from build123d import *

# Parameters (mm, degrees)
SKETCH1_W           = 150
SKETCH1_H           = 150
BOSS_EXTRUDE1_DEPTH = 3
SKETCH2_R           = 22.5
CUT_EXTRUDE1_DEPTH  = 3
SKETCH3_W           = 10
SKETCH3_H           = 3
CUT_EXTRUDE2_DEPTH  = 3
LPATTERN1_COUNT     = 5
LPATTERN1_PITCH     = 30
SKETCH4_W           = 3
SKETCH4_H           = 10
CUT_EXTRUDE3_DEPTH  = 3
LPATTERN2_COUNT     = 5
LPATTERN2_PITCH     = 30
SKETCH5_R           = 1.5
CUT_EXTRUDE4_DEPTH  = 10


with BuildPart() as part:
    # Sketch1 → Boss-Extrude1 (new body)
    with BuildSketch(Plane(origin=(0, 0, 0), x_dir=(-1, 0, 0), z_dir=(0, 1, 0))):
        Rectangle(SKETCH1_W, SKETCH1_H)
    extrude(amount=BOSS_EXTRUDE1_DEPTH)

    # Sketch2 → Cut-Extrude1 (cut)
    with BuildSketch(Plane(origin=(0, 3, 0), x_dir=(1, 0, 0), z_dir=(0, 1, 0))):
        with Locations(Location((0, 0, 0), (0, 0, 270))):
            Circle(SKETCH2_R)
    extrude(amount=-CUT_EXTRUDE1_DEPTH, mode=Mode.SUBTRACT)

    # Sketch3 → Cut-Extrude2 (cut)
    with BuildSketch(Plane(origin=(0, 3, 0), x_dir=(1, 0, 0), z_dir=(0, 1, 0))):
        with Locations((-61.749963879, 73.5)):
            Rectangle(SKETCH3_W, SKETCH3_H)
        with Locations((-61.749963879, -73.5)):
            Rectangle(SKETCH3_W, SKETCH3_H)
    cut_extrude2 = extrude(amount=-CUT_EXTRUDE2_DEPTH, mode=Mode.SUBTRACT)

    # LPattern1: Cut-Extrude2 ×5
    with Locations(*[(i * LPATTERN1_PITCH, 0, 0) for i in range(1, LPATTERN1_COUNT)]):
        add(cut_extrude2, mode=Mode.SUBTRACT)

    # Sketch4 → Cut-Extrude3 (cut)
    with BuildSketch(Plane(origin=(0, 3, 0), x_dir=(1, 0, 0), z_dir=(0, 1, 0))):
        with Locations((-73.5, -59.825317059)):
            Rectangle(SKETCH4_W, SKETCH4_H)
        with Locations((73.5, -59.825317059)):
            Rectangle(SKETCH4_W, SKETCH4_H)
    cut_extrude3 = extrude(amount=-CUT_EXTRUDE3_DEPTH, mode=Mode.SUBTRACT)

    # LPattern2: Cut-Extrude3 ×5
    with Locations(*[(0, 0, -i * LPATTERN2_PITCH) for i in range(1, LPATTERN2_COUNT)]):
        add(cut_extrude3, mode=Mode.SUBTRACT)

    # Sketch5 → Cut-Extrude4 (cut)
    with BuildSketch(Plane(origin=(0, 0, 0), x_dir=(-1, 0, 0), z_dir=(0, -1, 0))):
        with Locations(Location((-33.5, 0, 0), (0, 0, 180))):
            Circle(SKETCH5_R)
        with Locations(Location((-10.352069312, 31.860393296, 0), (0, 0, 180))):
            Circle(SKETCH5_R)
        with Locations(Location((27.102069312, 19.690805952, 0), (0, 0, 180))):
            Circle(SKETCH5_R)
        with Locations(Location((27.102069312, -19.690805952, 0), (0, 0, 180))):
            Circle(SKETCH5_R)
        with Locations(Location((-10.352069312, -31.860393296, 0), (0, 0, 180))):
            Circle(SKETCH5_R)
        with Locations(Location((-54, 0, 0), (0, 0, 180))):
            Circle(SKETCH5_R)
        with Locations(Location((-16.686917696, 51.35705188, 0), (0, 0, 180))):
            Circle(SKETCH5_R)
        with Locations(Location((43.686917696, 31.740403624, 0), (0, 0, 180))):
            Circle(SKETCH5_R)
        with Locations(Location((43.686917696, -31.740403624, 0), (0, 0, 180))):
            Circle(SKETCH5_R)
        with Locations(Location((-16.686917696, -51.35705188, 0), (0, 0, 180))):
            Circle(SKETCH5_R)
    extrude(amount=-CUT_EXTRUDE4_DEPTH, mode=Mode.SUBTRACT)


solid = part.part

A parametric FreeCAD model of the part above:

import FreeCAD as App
import Part
import Sketcher

V = App.Vector
Q = App.Units.Quantity

doc = App.newDocument("Part")
body = doc.addObject("PartDesign::Body", "Body")

# Sketch on XZ plane
sketch1 = doc.addObject("Sketcher::SketchObject", "Sketch")
body.addObject(sketch1)
sketch1.AttachmentSupport = (doc.XZ_Plane, [""])
sketch1.MapMode = "FlatFace"
sketch1.addGeometry([
    Part.LineSegment(V(75, 75, 0), V(75, -75, 0)),
    Part.LineSegment(V(75, -75, 0), V(-75, -75, 0)),
    Part.LineSegment(V(-75, -75, 0), V(-75, 75, 0)),
    Part.LineSegment(V(-75, 75, 0), V(75, 75, 0)),
], False)
sketch1.addConstraint([
    Sketcher.Constraint("Coincident", 0, 2, 1, 1),
    Sketcher.Constraint("Coincident", 1, 2, 2, 1),
    Sketcher.Constraint("Coincident", 2, 2, 3, 1),
    Sketcher.Constraint("Coincident", 3, 2, 0, 1),
    Sketcher.Constraint("Vertical", 0),
    Sketcher.Constraint("Horizontal", 1),
    Sketcher.Constraint("Vertical", 2),
    Sketcher.Constraint("Horizontal", 3),
    Sketcher.Constraint("Symmetric", 0, 2, 2, 2, -1, 1),
    Sketcher.Constraint("Equal", 3, 0),
    Sketcher.Constraint("DistanceX", 1, 2, 1, 1, Q("150 mm")),
])
pad1 = doc.addObject("PartDesign::Pad", "Pad")
body.addObject(pad1)
pad1.Profile = sketch1
pad1.Length = 3
pad1.Reversed = True

# Sketch on XZ plane
sketch2 = doc.addObject("Sketcher::SketchObject", "Sketch001")
body.addObject(sketch2)
sketch2.AttachmentSupport = (doc.XZ_Plane, [""])
sketch2.MapMode = "FlatFace"
sketch2.AttachmentOffset = App.Placement(V(0, 0, -3), App.Rotation())
sketch2.addGeometry(Part.Circle(V(0, 0, 0), V(0, 0, 1), 22.5), False)
sketch2.addConstraint([
    Sketcher.Constraint("Coincident", 0, 3, -1, 1),
    Sketcher.Constraint("Diameter", 0, Q("45 mm")),
])
pocket1 = doc.addObject("PartDesign::Pocket", "Pocket")
body.addObject(pocket1)
pocket1.Profile = sketch2
pocket1.Length = 3
pocket1.Reversed = True

# Sketch on XZ plane
sketch3 = doc.addObject("Sketcher::SketchObject", "Sketch002")
body.addObject(sketch3)
sketch3.AttachmentSupport = (doc.XZ_Plane, [""])
sketch3.MapMode = "FlatFace"
sketch3.AttachmentOffset = App.Placement(V(0, 0, -3), App.Rotation())
sketch3.addGeometry([
    Part.LineSegment(V(-66.749964, -75, 0), V(-66.749964, -72, 0)),  # 0
    Part.LineSegment(V(-66.749964, -72, 0), V(-56.749964, -72, 0)),  # 1
    Part.LineSegment(V(-56.749964, -72, 0), V(-56.749964, -75, 0)),  # 2
    Part.LineSegment(V(-56.749964, -75, 0), V(-66.749964, -75, 0)),  # 3
    Part.LineSegment(V(-66.749964, 72, 0), V(-66.749964, 75, 0)),  # 4
    Part.LineSegment(V(-66.749964, 75, 0), V(-56.749964, 75, 0)),  # 5
    Part.LineSegment(V(-56.749964, 75, 0), V(-56.749964, 72, 0)),  # 6
    Part.LineSegment(V(-56.749964, 72, 0), V(-66.749964, 72, 0)),  # 7
], False)
sketch3.addConstraint([
    Sketcher.Constraint("Coincident", 0, 2, 1, 1),
    Sketcher.Constraint("Coincident", 1, 2, 2, 1),
    Sketcher.Constraint("Coincident", 2, 2, 3, 1),
    Sketcher.Constraint("Coincident", 3, 2, 0, 1),
    Sketcher.Constraint("Coincident", 4, 2, 5, 1),
    Sketcher.Constraint("Coincident", 5, 2, 6, 1),
    Sketcher.Constraint("Coincident", 6, 2, 7, 1),
    Sketcher.Constraint("Coincident", 7, 2, 4, 1),
    Sketcher.Constraint("Vertical", 0),
    Sketcher.Constraint("Horizontal", 1),
    Sketcher.Constraint("Vertical", 2),
    Sketcher.Constraint("Horizontal", 3),
    Sketcher.Constraint("Vertical", 4),
    Sketcher.Constraint("Horizontal", 5),
    Sketcher.Constraint("Vertical", 6),
    Sketcher.Constraint("Horizontal", 7),
    Sketcher.Constraint("Symmetric", 3, 2, 4, 2, -1),
    Sketcher.Constraint("Symmetric", 1, 2, 6, 2, -1),
    Sketcher.Constraint("DistanceX", 1, 1, 1, 2, Q("10 mm")),
    Sketcher.Constraint("DistanceY", 0, 1, 0, 2, Q("3 mm")),
    Sketcher.Constraint("DistanceY", 0, 2, -1, 1, Q("72 mm")),
    Sketcher.Constraint("DistanceX", 0, 2, -1, 1, Q("66.749964 mm")),
])
pocket2 = doc.addObject("PartDesign::Pocket", "Pocket001")
body.addObject(pocket2)
pocket2.Profile = sketch3
pocket2.Length = 3
pocket2.Reversed = True
doc.recompute()

linearpattern = doc.addObject("PartDesign::LinearPattern", "LinearPattern")
body.addObject(linearpattern)
linearpattern.Originals = [pocket2]
linearpattern.Direction = (doc.X_Axis, [""])
linearpattern.Mode = "offset"
linearpattern.Offset = 30
linearpattern.Occurrences = 5
body.Tip = linearpattern

# Sketch on XZ plane
sketch4 = doc.addObject("Sketcher::SketchObject", "Sketch003")
body.addObject(sketch4)
sketch4.AttachmentSupport = (doc.XZ_Plane, [""])
sketch4.MapMode = "FlatFace"
sketch4.AttachmentOffset = App.Placement(V(0, 0, -3), App.Rotation())
sketch4.addGeometry([
    Part.LineSegment(V(-75, 54.825317, 0), V(-75, 64.825317, 0)),  # 0
    Part.LineSegment(V(-75, 64.825317, 0), V(-72, 64.825317, 0)),  # 1
    Part.LineSegment(V(-72, 64.825317, 0), V(-72, 54.825317, 0)),  # 2
    Part.LineSegment(V(-72, 54.825317, 0), V(-75, 54.825317, 0)),  # 3
    Part.LineSegment(V(72, 54.825317, 0), V(72, 64.825317, 0)),  # 4
    Part.LineSegment(V(72, 64.825317, 0), V(75, 64.825317, 0)),  # 5
    Part.LineSegment(V(75, 64.825317, 0), V(75, 54.825317, 0)),  # 6
    Part.LineSegment(V(75, 54.825317, 0), V(72, 54.825317, 0)),  # 7
], False)
sketch4.addConstraint([
    Sketcher.Constraint("Coincident", 0, 2, 1, 1),
    Sketcher.Constraint("Coincident", 1, 2, 2, 1),
    Sketcher.Constraint("Coincident", 2, 2, 3, 1),
    Sketcher.Constraint("Coincident", 3, 2, 0, 1),
    Sketcher.Constraint("Coincident", 4, 2, 5, 1),
    Sketcher.Constraint("Coincident", 5, 2, 6, 1),
    Sketcher.Constraint("Coincident", 6, 2, 7, 1),
    Sketcher.Constraint("Coincident", 7, 2, 4, 1),
    Sketcher.Constraint("Vertical", 0),
    Sketcher.Constraint("Horizontal", 1),
    Sketcher.Constraint("Vertical", 2),
    Sketcher.Constraint("Horizontal", 3),
    Sketcher.Constraint("Vertical", 4),
    Sketcher.Constraint("Horizontal", 5),
    Sketcher.Constraint("Vertical", 6),
    Sketcher.Constraint("Horizontal", 7),
    Sketcher.Constraint("Symmetric", 1, 2, 4, 2, -2),
    Sketcher.Constraint("Symmetric", 3, 2, 6, 2, -2),
    Sketcher.Constraint("DistanceX", 1, 1, 1, 2, Q("3 mm")),
    Sketcher.Constraint("DistanceY", 0, 1, 0, 2, Q("10 mm")),
    Sketcher.Constraint("DistanceX", 0, 2, -1, 1, Q("75 mm")),
    Sketcher.Constraint("DistanceY", -1, 1, 0, 2, Q("64.825317 mm")),
])
pocket3 = doc.addObject("PartDesign::Pocket", "Pocket002")
body.addObject(pocket3)
pocket3.Profile = sketch4
pocket3.Length = 3
pocket3.Reversed = True
doc.recompute()

linearpattern2 = doc.addObject("PartDesign::LinearPattern", "LinearPattern001")
body.addObject(linearpattern2)
linearpattern2.Originals = [pocket3]
linearpattern2.Direction = (doc.Z_Axis, [""])
linearpattern2.Mode = "offset"
linearpattern2.Offset = 30
linearpattern2.Occurrences = 5
linearpattern2.Reversed = True
body.Tip = linearpattern2

# Sketch on XZ plane
sketch5 = doc.addObject("Sketcher::SketchObject", "Sketch004")
body.addObject(sketch5)
sketch5.AttachmentSupport = (doc.XZ_Plane, [""])
sketch5.MapMode = "FlatFace"
sketch5.addGeometry([
    Part.Circle(V(33.5, 0, 0), V(0, 0, 1), 1.5),  # 0
    Part.Circle(V(10.352069, -31.860393, 0), V(0, 0, 1), 1.5),  # 1
    Part.Circle(V(-27.102069, -19.690806, 0), V(0, 0, 1), 1.5),  # 2
    Part.Circle(V(-27.102069, 19.690806, 0), V(0, 0, 1), 1.5),  # 3
    Part.Circle(V(10.352069, 31.860393, 0), V(0, 0, 1), 1.5),  # 4
    Part.Circle(V(54, 0, 0), V(0, 0, 1), 1.5),  # 5
    Part.Circle(V(16.686918, -51.357052, 0), V(0, 0, 1), 1.5),  # 6
    Part.Circle(V(-43.686918, -31.740404, 0), V(0, 0, 1), 1.5),  # 7
    Part.Circle(V(-43.686918, 31.740404, 0), V(0, 0, 1), 1.5),  # 8
    Part.Circle(V(16.686918, 51.357052, 0), V(0, 0, 1), 1.5),  # 9
], False)
sketch5.addConstraint([
    Sketcher.Constraint("Equal", 0, 1),
    Sketcher.Constraint("Equal", 1, 2),
    Sketcher.Constraint("Equal", 2, 3),
    Sketcher.Constraint("Equal", 3, 4),
    Sketcher.Constraint("Equal", 4, 5),
    Sketcher.Constraint("Equal", 5, 6),
    Sketcher.Constraint("Equal", 6, 7),
    Sketcher.Constraint("Equal", 7, 8),
    Sketcher.Constraint("Equal", 8, 9),
    Sketcher.Constraint("Symmetric", 2, 3, 3, 3, -1),
    Sketcher.Constraint("Symmetric", 1, 3, 4, 3, -1),
    Sketcher.Constraint("Symmetric", 7, 3, 8, 3, -1),
    Sketcher.Constraint("Symmetric", 6, 3, 9, 3, -1),
    Sketcher.Constraint("PointOnObject", 0, 3, -1),
    Sketcher.Constraint("PointOnObject", 5, 3, -1),
    Sketcher.Constraint("Diameter", 0, Q("3 mm")),
    Sketcher.Constraint("DistanceX", -1, 1, 5, 3, Q("54 mm")),
    Sketcher.Constraint("DistanceX", -1, 1, 0, 3, Q("33.5 mm")),
    Sketcher.Constraint("DistanceY", 1, 3, 3, 3, Q("51.551199 mm")),
    Sketcher.Constraint("DistanceX", -1, 1, 1, 3, Q("10.352069 mm")),
    Sketcher.Constraint("DistanceX", 2, 3, -1, 1, Q("27.102069 mm")),
    Sketcher.Constraint("DistanceY", 6, 3, -1, 1, Q("51.357052 mm")),
    Sketcher.Constraint("DistanceY", 2, 3, 3, 3, Q("39.381612 mm")),
    Sketcher.Constraint("DistanceX", 1, 3, 6, 3, Q("6.334848 mm")),
    Sketcher.Constraint("DistanceX", 7, 3, 2, 3, Q("16.584848 mm")),
    Sketcher.Constraint("DistanceY", 7, 3, 3, 3, Q("51.43121 mm")),
])
pocket4 = doc.addObject("PartDesign::Pocket", "Pocket003")
body.addObject(pocket4)
pocket4.Profile = sketch5
pocket4.Length = 10

doc.recompute()
